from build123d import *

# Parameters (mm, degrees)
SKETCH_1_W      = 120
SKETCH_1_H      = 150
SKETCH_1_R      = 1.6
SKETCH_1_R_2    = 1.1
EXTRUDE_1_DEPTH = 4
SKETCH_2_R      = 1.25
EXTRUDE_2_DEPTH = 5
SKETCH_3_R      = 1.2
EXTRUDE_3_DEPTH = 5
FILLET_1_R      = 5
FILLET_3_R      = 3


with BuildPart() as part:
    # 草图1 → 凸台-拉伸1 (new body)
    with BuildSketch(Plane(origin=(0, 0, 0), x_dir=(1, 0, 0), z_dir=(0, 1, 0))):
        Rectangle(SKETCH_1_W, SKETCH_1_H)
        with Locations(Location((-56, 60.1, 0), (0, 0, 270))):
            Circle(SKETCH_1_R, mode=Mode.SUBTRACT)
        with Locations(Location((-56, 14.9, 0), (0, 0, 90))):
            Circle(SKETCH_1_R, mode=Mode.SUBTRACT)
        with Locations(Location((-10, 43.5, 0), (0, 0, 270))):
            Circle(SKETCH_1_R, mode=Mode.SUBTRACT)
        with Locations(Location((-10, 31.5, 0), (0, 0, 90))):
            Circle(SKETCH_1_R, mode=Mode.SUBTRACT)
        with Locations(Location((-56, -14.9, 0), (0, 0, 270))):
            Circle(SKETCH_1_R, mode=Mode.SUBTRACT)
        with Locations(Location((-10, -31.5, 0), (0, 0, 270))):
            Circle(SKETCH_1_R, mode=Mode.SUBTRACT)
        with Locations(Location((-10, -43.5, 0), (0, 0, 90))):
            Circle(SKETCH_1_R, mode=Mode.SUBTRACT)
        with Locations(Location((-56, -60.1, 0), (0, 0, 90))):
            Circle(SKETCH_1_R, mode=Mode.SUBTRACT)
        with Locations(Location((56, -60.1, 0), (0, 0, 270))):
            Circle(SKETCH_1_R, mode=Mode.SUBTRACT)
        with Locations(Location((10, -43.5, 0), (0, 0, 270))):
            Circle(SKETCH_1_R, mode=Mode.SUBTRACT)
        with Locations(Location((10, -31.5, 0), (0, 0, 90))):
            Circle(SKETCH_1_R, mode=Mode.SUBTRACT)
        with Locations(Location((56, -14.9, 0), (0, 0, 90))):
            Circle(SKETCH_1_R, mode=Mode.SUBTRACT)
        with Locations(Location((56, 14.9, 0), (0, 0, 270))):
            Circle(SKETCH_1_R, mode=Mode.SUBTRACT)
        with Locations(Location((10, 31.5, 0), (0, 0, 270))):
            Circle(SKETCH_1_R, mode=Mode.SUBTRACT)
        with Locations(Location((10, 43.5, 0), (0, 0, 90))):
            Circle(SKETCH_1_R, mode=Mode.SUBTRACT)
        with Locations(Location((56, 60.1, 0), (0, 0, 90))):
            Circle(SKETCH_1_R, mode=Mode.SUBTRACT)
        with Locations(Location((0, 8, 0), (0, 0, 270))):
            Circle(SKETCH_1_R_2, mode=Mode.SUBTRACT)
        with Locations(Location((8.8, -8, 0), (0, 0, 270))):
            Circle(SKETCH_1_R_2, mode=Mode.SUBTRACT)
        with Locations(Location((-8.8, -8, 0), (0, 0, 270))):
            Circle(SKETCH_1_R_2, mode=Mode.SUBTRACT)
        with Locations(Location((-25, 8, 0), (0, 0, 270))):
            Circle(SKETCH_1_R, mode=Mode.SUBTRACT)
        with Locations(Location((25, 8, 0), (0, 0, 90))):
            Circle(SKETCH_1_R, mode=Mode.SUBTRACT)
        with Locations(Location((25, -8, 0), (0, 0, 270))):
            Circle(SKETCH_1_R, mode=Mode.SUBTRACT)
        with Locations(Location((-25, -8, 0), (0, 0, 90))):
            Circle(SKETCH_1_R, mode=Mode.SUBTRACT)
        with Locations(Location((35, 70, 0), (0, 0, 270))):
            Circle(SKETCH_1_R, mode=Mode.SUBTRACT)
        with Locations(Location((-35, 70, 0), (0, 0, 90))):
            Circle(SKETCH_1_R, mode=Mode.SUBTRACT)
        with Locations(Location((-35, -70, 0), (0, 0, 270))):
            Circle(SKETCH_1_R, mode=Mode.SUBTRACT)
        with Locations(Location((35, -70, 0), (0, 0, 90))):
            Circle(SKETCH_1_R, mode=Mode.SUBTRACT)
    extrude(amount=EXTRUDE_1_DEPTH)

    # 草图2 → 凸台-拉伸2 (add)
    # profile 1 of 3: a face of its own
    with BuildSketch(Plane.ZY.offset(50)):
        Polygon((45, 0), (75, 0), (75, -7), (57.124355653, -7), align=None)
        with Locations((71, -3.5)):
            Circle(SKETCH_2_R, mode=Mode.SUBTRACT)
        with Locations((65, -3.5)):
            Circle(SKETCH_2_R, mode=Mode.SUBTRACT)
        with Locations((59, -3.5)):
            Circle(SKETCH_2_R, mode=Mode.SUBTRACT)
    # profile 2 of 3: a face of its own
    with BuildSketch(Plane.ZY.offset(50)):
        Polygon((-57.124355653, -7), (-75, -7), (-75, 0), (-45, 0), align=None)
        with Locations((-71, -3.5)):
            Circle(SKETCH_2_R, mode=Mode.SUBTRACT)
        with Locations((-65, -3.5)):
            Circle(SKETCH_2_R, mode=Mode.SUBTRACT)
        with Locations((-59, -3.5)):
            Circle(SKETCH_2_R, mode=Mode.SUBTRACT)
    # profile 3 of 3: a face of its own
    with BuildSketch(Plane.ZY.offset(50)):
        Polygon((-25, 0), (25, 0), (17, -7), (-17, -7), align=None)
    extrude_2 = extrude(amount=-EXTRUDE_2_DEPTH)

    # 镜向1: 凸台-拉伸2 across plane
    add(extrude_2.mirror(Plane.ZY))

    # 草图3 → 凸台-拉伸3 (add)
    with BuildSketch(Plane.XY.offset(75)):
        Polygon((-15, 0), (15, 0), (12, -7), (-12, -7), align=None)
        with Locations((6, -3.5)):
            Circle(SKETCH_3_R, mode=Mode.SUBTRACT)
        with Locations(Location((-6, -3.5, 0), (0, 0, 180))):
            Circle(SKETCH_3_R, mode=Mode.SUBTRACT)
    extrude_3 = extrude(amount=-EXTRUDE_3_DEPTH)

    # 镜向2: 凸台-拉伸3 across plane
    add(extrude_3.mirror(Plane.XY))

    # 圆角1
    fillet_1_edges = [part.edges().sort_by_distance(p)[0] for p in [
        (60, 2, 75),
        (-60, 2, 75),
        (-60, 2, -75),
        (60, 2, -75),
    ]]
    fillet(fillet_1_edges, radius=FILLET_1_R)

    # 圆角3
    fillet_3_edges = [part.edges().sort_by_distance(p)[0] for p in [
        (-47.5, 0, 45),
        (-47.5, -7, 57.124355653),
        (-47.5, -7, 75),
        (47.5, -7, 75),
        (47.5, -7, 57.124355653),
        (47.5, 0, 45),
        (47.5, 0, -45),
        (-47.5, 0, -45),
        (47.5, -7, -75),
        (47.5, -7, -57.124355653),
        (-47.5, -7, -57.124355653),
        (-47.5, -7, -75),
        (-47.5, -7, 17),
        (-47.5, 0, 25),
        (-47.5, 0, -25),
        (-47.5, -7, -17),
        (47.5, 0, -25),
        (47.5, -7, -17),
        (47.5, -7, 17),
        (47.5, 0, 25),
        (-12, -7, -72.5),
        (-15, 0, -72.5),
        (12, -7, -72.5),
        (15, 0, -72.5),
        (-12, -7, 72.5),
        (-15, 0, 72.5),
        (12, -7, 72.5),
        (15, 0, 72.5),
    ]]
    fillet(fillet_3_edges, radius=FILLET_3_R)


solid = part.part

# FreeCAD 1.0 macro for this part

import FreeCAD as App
import Part
import Sketcher
Q = App.Units.Quantity


def edges_at(feature, points):
    """Names of the edges that pass closest to the given points."""
    edges = feature.Shape.Edges
    near = lambda p: min(range(len(edges)), key=lambda i: edges[i].distToShape(Part.Vertex(*p))[0])
    return sorted({f"Edge{near(p) + 1}" for p in points})


def add_polygon(sketch, points):
    """Adds a closed chain of lines whose ends are joined by coincident constraints."""
    first, n = sketch.GeometryCount, len(points)
    for a, b in zip(points, points[1:] + points[:1]):
        sketch.addGeometry(Part.LineSegment(App.Vector(*a, 0), App.Vector(*b, 0)), False)
    for i in range(n):
        sketch.addConstraint(Sketcher.Constraint("Coincident", first + i, 2, first + (i + 1) % n, 1))

doc = App.newDocument("Part")
body = doc.addObject("PartDesign::Body", "Body")

# Sketch on XZ plane
sketch1 = body.newObject("Sketcher::SketchObject", "Sketch")
sketch1.AttachmentSupport = (doc.getObject("XZ_Plane"), [""])
sketch1.MapMode = "FlatFace"
add_polygon(sketch1, [(-60, -75), (-60, 75), (60, 75), (60, -75)])  # lines 0-3
sketch1.addGeometry(Part.Circle(App.Vector(-56, 60.1, 0), App.Vector(0, 0, 1), 1.6), False)  # 4
sketch1.addGeometry(Part.Circle(App.Vector(-35, 70, 0), App.Vector(0, 0, 1), 1.6), False)  # 5
sketch1.addGeometry(Part.Circle(App.Vector(-10, 43.5, 0), App.Vector(0, 0, 1), 1.6), False)  # 6
sketch1.addGeometry(Part.Circle(App.Vector(-56, 14.9, 0), App.Vector(0, 0, 1), 1.6), False)  # 7
sketch1.addGeometry(Part.Circle(App.Vector(-10, 31.5, 0), App.Vector(0, 0, 1), 1.6), False)  # 8
sketch1.addGeometry(Part.Circle(App.Vector(-25, 8, 0), App.Vector(0, 0, 1), 1.6), False)  # 9
sketch1.addGeometry(Part.Circle(App.Vector(-8.8, 8, 0), App.Vector(0, 0, 1), 1.1), False)  # 10
sketch1.addGeometry(Part.Circle(App.Vector(10, 43.5, 0), App.Vector(0, 0, 1), 1.6), False)  # 11
sketch1.addGeometry(Part.Circle(App.Vector(35, 70, 0), App.Vector(0, 0, 1), 1.6), False)  # 12
sketch1.addGeometry(Part.Circle(App.Vector(56, 60.1, 0), App.Vector(0, 0, 1), 1.6), False)  # 13
sketch1.addGeometry(Part.Circle(App.Vector(10, 31.5, 0), App.Vector(0, 0, 1), 1.6), False)  # 14
sketch1.addGeometry(Part.Circle(App.Vector(8.8, 8, 0), App.Vector(0, 0, 1), 1.1), False)  # 15
sketch1.addGeometry(Part.Circle(App.Vector(25, 8, 0), App.Vector(0, 0, 1), 1.6), False)  # 16
sketch1.addGeometry(Part.Circle(App.Vector(56, 14.9, 0), App.Vector(0, 0, 1), 1.6), False)  # 17
sketch1.addGeometry(Part.Circle(App.Vector(-56, -14.9, 0), App.Vector(0, 0, 1), 1.6), False)  # 18
sketch1.addGeometry(Part.Circle(App.Vector(-25, -8, 0), App.Vector(0, 0, 1), 1.6), False)  # 19
sketch1.addGeometry(Part.Circle(App.Vector(-10, -31.5, 0), App.Vector(0, 0, 1), 1.6), False)  # 20
sketch1.addGeometry(Part.Circle(App.Vector(-56, -60.1, 0), App.Vector(0, 0, 1), 1.6), False)  # 21
sketch1.addGeometry(Part.Circle(App.Vector(-35, -70, 0), App.Vector(0, 0, 1), 1.6), False)  # 22
sketch1.addGeometry(Part.Circle(App.Vector(-10, -43.5, 0), App.Vector(0, 0, 1), 1.6), False)  # 23
sketch1.addGeometry(Part.Circle(App.Vector(0, -8, 0), App.Vector(0, 0, 1), 1.1), False)  # 24
sketch1.addGeometry(Part.Circle(App.Vector(25, -8, 0), App.Vector(0, 0, 1), 1.6), False)  # 25
sketch1.addGeometry(Part.Circle(App.Vector(10, -31.5, 0), App.Vector(0, 0, 1), 1.6), False)  # 26
sketch1.addGeometry(Part.Circle(App.Vector(56, -14.9, 0), App.Vector(0, 0, 1), 1.6), False)  # 27
sketch1.addGeometry(Part.Circle(App.Vector(10, -43.5, 0), App.Vector(0, 0, 1), 1.6), False)  # 28
sketch1.addGeometry(Part.Circle(App.Vector(35, -70, 0), App.Vector(0, 0, 1), 1.6), False)  # 29
sketch1.addGeometry(Part.Circle(App.Vector(56, -60.1, 0), App.Vector(0, 0, 1), 1.6), False)  # 30
sketch1.addConstraint(Sketcher.Constraint("Vertical", 0))
sketch1.addConstraint(Sketcher.Constraint("Horizontal", 1))
sketch1.addConstraint(Sketcher.Constraint("Vertical", 2))
sketch1.addConstraint(Sketcher.Constraint("Horizontal", 3))
sketch1.addConstraint(Sketcher.Constraint("Equal", 4, 5))
sketch1.addConstraint(Sketcher.Constraint("Equal", 5, 6))
sketch1.addConstraint(Sketcher.Constraint("Equal", 6, 7))
sketch1.addConstraint(Sketcher.Constraint("Equal", 7, 8))
sketch1.addConstraint(Sketcher.Constraint("Equal", 8, 9))
sketch1.addConstraint(Sketcher.Constraint("Equal", 9, 11))
sketch1.addConstraint(Sketcher.Constraint("Equal", 11, 12))
sketch1.addConstraint(Sketcher.Constraint("Equal", 12, 13))
sketch1.addConstraint(Sketcher.Constraint("Equal", 13, 14))
sketch1.addConstraint(Sketcher.Constraint("Equal", 10, 15))
sketch1.addConstraint(Sketcher.Constraint("Equal", 14, 16))
sketch1.addConstraint(Sketcher.Constraint("Equal", 16, 17))
sketch1.addConstraint(Sketcher.Constraint("Equal", 17, 18))
sketch1.addConstraint(Sketcher.Constraint("Equal", 18, 19))
sketch1.addConstraint(Sketcher.Constraint("Equal", 19, 20))
sketch1.addConstraint(Sketcher.Constraint("Equal", 20, 21))
sketch1.addConstraint(Sketcher.Constraint("Equal", 21, 22))
sketch1.addConstraint(Sketcher.Constraint("Equal", 22, 23))
sketch1.addConstraint(Sketcher.Constraint("Equal", 15, 24))
sketch1.addConstraint(Sketcher.Constraint("Equal", 23, 25))
sketch1.addConstraint(Sketcher.Constraint("Equal", 25, 26))
sketch1.addConstraint(Sketcher.Constraint("Equal", 26, 27))
sketch1.addConstraint(Sketcher.Constraint("Equal", 27, 28))
sketch1.addConstraint(Sketcher.Constraint("Equal", 28, 29))
sketch1.addConstraint(Sketcher.Constraint("Equal", 29, 30))
sketch1.addConstraint(Sketcher.Constraint("Symmetric", 17, 3, 18, 3, -1, 1))
sketch1.addConstraint(Sketcher.Constraint("Symmetric", 16, 3, 19, 3, -1, 1))
sketch1.addConstraint(Sketcher.Constraint("Symmetric", 14, 3, 20, 3, -1, 1))
sketch1.addConstraint(Sketcher.Constraint("Symmetric", 13, 3, 21, 3, -1, 1))
sketch1.addConstraint(Sketcher.Constraint("Symmetric", 12, 3, 22, 3, -1, 1))
sketch1.addConstraint(Sketcher.Constraint("Symmetric", 11, 3, 23, 3, -1, 1))
sketch1.addConstraint(Sketcher.Constraint("Symmetric", 9, 3, 25, 3, -1, 1))
sketch1.addConstraint(Sketcher.Constraint("Symmetric", 8, 3, 26, 3, -1, 1))
sketch1.addConstraint(Sketcher.Constraint("Symmetric", 7, 3, 27, 3, -1, 1))
sketch1.addConstraint(Sketcher.Constraint("Symmetric", 6, 3, 28, 3, -1, 1))
sketch1.addConstraint(Sketcher.Constraint("Symmetric", 5, 3, 29, 3, -1, 1))
sketch1.addConstraint(Sketcher.Constraint("Symmetric", 4, 3, 30, 3, -1, 1))
sketch1.addConstraint(Sketcher.Constraint("Symmetric", 0, 2, 2, 2, -1, 1))
sketch1.addConstraint(Sketcher.Constraint("Symmetric", 6, 3, 11, 3, -2))
sketch1.addConstraint(Sketcher.Constraint("Symmetric", 5, 3, 12, 3, -2))
sketch1.addConstraint(Sketcher.Constraint("Symmetric", 4, 3, 13, 3, -2))
sketch1.addConstraint(Sketcher.Constraint("Symmetric", 8, 3, 14, 3, -2))
sketch1.addConstraint(Sketcher.Constraint("Symmetric", 10, 3, 15, 3, -2))
sketch1.addConstraint(Sketcher.Constraint("Symmetric", 9, 3, 16, 3, -2))
sketch1.addConstraint(Sketcher.Constraint("Symmetric", 7, 3, 17, 3, -2))
sketch1.addConstraint(Sketcher.Constraint("PointOnObject", 24, 3, -2))
sketch1.addConstraint(Sketcher.Constraint("Horizontal", 9, 3, 10, 3))
sketch1.addConstraint(Sketcher.Constraint("Horizontal", 19, 3, 24, 3))
sketch1.addConstraint(Sketcher.Constraint("Vertical", 4, 3, 7, 3))
sketch1.addConstraint(Sketcher.Constraint("Vertical", 6, 3, 8, 3))
sketch1.addConstraint(Sketcher.Constraint("Diameter", 4, Q("3.2 mm")))
sketch1.addConstraint(Sketcher.Constraint("Diameter", 10, Q("2.2 mm")))
sketch1.addConstraint(Sketcher.Constraint("DistanceX", 1, 1, 1, 2, Q("120 mm")))
sketch1.addConstraint(Sketcher.Constraint("DistanceY", 0, 1, 0, 2, Q("150 mm")))
sketch1.addConstraint(Sketcher.Constraint("DistanceX", 4, 3, -1, 1, Q("56 mm")))
sketch1.addConstraint(Sketcher.Constraint("DistanceX", 5, 3, -1, 1, Q("35 mm")))
sketch1.addConstraint(Sketcher.Constraint("DistanceY", -1, 1, 5, 3, Q("70 mm")))
sketch1.addConstraint(Sketcher.Constraint("DistanceX", 6, 3, -1, 1, Q("10 mm")))
sketch1.addConstraint(Sketcher.Constraint("DistanceX", 9, 3, -1, 1, Q("25 mm")))
sketch1.addConstraint(Sketcher.Constraint("DistanceY", -1, 1, 9, 3, Q("8 mm")))
sketch1.addConstraint(Sketcher.Constraint("DistanceY", 8, 3, 6, 3, Q("12 mm")))
sketch1.addConstraint(Sketcher.Constraint("DistanceY", 21, 3, 7, 3, Q("75 mm")))
sketch1.addConstraint(Sketcher.Constraint("DistanceY", -1, 1, 4, 3, Q("60.1 mm")))
sketch1.addConstraint(Sketcher.Constraint("DistanceY", -1, 1, 6, 3, Q("43.5 mm")))
sketch1.addConstraint(Sketcher.Constraint("DistanceX", 10, 3, -1, 1, Q("8.8 mm")))
pad1 = body.newObject("PartDesign::Pad", "Pad")
pad1.Profile = sketch1
pad1.Length = 4
pad1.Reversed = True

# Sketch on YZ plane
sketch2 = body.newObject("Sketcher::SketchObject", "Sketch001")
sketch2.AttachmentSupport = (doc.getObject("YZ_Plane"), [""])
sketch2.MapMode = "FlatFace"
sketch2.AttachmentOffset = App.Placement(App.Vector(0, 0, -50), App.Rotation())
add_polygon(sketch2, [(0, 75), (0, 45), (-7, 57.124356), (-7, 75)])  # lines 0-3
sketch2.addGeometry(Part.Circle(App.Vector(-3.5, 71, 0), App.Vector(0, 0, 1), 1.25), False)  # 4
sketch2.addGeometry(Part.Circle(App.Vector(-3.5, 65, 0), App.Vector(0, 0, 1), 1.25), False)  # 5
sketch2.addGeometry(Part.Circle(App.Vector(-3.5, 59, 0), App.Vector(0, 0, 1), 1.25), False)  # 6
add_polygon(sketch2, [(-7, -75), (-7, -57.124356), (0, -45), (0, -75)])  # lines 7-10
sketch2.addGeometry(Part.Circle(App.Vector(-3.5, -59, 0), App.Vector(0, 0, 1), 1.25), False)  # 11
sketch2.addGeometry(Part.Circle(App.Vector(-3.5, -65, 0), App.Vector(0, 0, 1), 1.25), False)  # 12
sketch2.addGeometry(Part.Circle(App.Vector(-3.5, -71, 0), App.Vector(0, 0, 1), 1.25), False)  # 13
add_polygon(sketch2, [(0, 25), (0, -25), (-7, -17), (-7, 17)])  # lines 14-17
sketch2.addConstraint(Sketcher.Constraint("Vertical", 0))
sketch2.addConstraint(Sketcher.Constraint("Vertical", 2))
sketch2.addConstraint(Sketcher.Constraint("Horizontal", 3))
sketch2.addConstraint(Sketcher.Constraint("Vertical", 7))
sketch2.addConstraint(Sketcher.Constraint("Vertical", 9))
sketch2.addConstraint(Sketcher.Constraint("Horizontal", 10))
sketch2.addConstraint(Sketcher.Constraint("Vertical", 14))
sketch2.addConstraint(Sketcher.Constraint("Vertical", 16))
sketch2.addConstraint(Sketcher.Constraint("Equal", 4, 5))
sketch2.addConstraint(Sketcher.Constraint("Equal", 5, 6))
sketch2.addConstraint(Sketcher.Constraint("Equal", 6, 11))
sketch2.addConstraint(Sketcher.Constraint("Equal", 11, 12))
sketch2.addConstraint(Sketcher.Constraint("Equal", 12, 13))
sketch2.addConstraint(Sketcher.Constraint("Symmetric", 0, 2, 8, 2, -1, 1))
sketch2.addConstraint(Sketcher.Constraint("Symmetric", 14, 2, 17, 2, -1, 1))
sketch2.addConstraint(Sketcher.Constraint("Symmetric", 6, 3, 11, 3, -1))
sketch2.addConstraint(Sketcher.Constraint("Symmetric", 5, 3, 12, 3, -1))
sketch2.addConstraint(Sketcher.Constraint("Symmetric", 4, 3, 13, 3, -1))
sketch2.addConstraint(Sketcher.Constraint("Symmetric", 1, 2, 7, 2, -1))
sketch2.addConstraint(Sketcher.Constraint("Symmetric", 3, 2, 9, 2, -1))
sketch2.addConstraint(Sketcher.Constraint("Vertical", 4, 3, 5, 3))
sketch2.addConstraint(Sketcher.Constraint("Vertical", 5, 3, 6, 3))
sketch2.addConstraint(Sketcher.Constraint("Vertical", 10, 2, 15, 2))
sketch2.addConstraint(Sketcher.Constraint("Equal", 15, 17))
sketch2.addConstraint(Sketcher.Constraint("Diameter", 4, Q("2.5 mm")))
sketch2.addConstraint(Sketcher.Constraint("DistanceX", 3, 1, 3, 2, Q("7 mm")))
sketch2.addConstraint(Sketcher.Constraint("DistanceY", 0, 2, 0, 1, Q("30 mm")))
sketch2.addConstraint(Sketcher.Constraint("DistanceY", 14, 2, 14, 1, Q("50 mm")))
sketch2.addConstraint(Sketcher.Constraint("DistanceY", 16, 1, 16, 2, Q("34 mm")))
sketch2.addConstraint(Sketcher.Constraint("Angle", 1, Q("120 deg")))
sketch2.addConstraint(Sketcher.Constraint("DistanceY", -1, 1, 4, 3, Q("71 mm")))
sketch2.addConstraint(Sketcher.Constraint("DistanceY", -1, 1, 5, 3, Q("65 mm")))
sketch2.addConstraint(Sketcher.Constraint("DistanceY", -1, 1, 6, 3, Q("59 mm")))
sketch2.addConstraint(Sketcher.Constraint("DistanceY", -1, 1, 0, 2, Q("45 mm")))
sketch2.addConstraint(Sketcher.Constraint("DistanceX", 4, 3, -1, 1, Q("3.5 mm")))
pad2 = body.newObject("PartDesign::Pad", "Pad001")
pad2.Profile = sketch2
pad2.Length = 5
doc.recompute()

mirrored = body.newObject("PartDesign::Mirrored", "Mirrored")
mirrored.Originals = [pad2]
mirrored.MirrorPlane = (doc.getObject("YZ_Plane"), [""])
body.Tip = mirrored

# Sketch on XY plane
sketch3 = body.newObject("Sketcher::SketchObject", "Sketch002")
sketch3.AttachmentSupport = (doc.getObject("XY_Plane"), [""])
sketch3.MapMode = "FlatFace"
sketch3.AttachmentOffset = App.Placement(App.Vector(0, 0, 75), App.Rotation())
add_polygon(sketch3, [(15, 0), (-15, 0), (-12, -7), (12, -7)])  # lines 0-3
sketch3.addGeometry(Part.Circle(App.Vector(6, -3.5, 0), App.Vector(0, 0, 1), 1.2), False)  # 4
sketch3.addGeometry(Part.Circle(App.Vector(-6, -3.5, 0), App.Vector(0, 0, 1), 1.2), False)  # 5
sketch3.addConstraint(Sketcher.Constraint("Horizontal", 0))
sketch3.addConstraint(Sketcher.Constraint("Horizontal", 2))
sketch3.addConstraint(Sketcher.Constraint("Equal", 4, 5))
sketch3.addConstraint(Sketcher.Constraint("Symmetric", 0, 2, 3, 2, -1, 1))
sketch3.addConstraint(Sketcher.Constraint("Symmetric", 4, 3, 5, 3, -2))
sketch3.addConstraint(Sketcher.Constraint("Equal", 1, 3))
sketch3.addConstraint(Sketcher.Constraint("Diameter", 4, Q("2.4 mm")))
sketch3.addConstraint(Sketcher.Constraint("DistanceX", 0, 2, 0, 1, Q("30 mm")))
sketch3.addConstraint(Sketcher.Constraint("DistanceX", 2, 1, 2, 2, Q("24 mm")))
sketch3.addConstraint(Sketcher.Constraint("DistanceX", -1, 1, 4, 3, Q("6 mm")))
sketch3.addConstraint(Sketcher.Constraint("DistanceY", 1, 2, -1, 1, Q("7 mm")))
sketch3.addConstraint(Sketcher.Constraint("DistanceY", 4, 3, -1, 1, Q("3.5 mm")))
pad3 = body.newObject("PartDesign::Pad", "Pad002")
pad3.Profile = sketch3
pad3.Length = 5
pad3.Reversed = True
doc.recompute()

mirrored2 = body.newObject("PartDesign::Mirrored", "Mirrored001")
mirrored2.Originals = [pad3]
mirrored2.MirrorPlane = (doc.getObject("XY_Plane"), [""])
body.Tip = mirrored2
doc.recompute()

fillet = body.newObject("PartDesign::Fillet", "Fillet")
fillet.Base = (mirrored2, edges_at(mirrored2, [
    (60, 2, 75),
    (-60, 2, 75),
    (-60, 2, -75),
    (60, 2, -75),
]))
fillet.Radius = 5
doc.recompute()

fillet2 = body.newObject("PartDesign::Fillet", "Fillet001")
fillet2.Base = (fillet, edges_at(fillet, [
    (-47.5, 0, 45),
    (-47.5, -7, 57.124),
    (-47.5, -7, 75),
    (47.5, -7, 75),
    (47.5, -7, 57.124),
    (47.5, 0, 45),
    (47.5, 0, -45),
    (-47.5, 0, -45),
    (47.5, -7, -75),
    (47.5, -7, -57.124),
    (-47.5, -7, -57.124),
    (-47.5, -7, -75),
    (-47.5, -7, 17),
    (-47.5, 0, 25),
    (-47.5, 0, -25),
    (-47.5, -7, -17),
    (47.5, 0, -25),
    (47.5, -7, -17),
    (47.5, -7, 17),
    (47.5, 0, 25),
    (-12, -7, -72.5),
    (-15, 0, -72.5),
    (12, -7, -72.5),
    (15, 0, -72.5),
    (-12, -7, 72.5),
    (-15, 0, 72.5),
    (12, -7, 72.5),
    (15, 0, 72.5),
]))
fillet2.Radius = 3

doc.recompute()
